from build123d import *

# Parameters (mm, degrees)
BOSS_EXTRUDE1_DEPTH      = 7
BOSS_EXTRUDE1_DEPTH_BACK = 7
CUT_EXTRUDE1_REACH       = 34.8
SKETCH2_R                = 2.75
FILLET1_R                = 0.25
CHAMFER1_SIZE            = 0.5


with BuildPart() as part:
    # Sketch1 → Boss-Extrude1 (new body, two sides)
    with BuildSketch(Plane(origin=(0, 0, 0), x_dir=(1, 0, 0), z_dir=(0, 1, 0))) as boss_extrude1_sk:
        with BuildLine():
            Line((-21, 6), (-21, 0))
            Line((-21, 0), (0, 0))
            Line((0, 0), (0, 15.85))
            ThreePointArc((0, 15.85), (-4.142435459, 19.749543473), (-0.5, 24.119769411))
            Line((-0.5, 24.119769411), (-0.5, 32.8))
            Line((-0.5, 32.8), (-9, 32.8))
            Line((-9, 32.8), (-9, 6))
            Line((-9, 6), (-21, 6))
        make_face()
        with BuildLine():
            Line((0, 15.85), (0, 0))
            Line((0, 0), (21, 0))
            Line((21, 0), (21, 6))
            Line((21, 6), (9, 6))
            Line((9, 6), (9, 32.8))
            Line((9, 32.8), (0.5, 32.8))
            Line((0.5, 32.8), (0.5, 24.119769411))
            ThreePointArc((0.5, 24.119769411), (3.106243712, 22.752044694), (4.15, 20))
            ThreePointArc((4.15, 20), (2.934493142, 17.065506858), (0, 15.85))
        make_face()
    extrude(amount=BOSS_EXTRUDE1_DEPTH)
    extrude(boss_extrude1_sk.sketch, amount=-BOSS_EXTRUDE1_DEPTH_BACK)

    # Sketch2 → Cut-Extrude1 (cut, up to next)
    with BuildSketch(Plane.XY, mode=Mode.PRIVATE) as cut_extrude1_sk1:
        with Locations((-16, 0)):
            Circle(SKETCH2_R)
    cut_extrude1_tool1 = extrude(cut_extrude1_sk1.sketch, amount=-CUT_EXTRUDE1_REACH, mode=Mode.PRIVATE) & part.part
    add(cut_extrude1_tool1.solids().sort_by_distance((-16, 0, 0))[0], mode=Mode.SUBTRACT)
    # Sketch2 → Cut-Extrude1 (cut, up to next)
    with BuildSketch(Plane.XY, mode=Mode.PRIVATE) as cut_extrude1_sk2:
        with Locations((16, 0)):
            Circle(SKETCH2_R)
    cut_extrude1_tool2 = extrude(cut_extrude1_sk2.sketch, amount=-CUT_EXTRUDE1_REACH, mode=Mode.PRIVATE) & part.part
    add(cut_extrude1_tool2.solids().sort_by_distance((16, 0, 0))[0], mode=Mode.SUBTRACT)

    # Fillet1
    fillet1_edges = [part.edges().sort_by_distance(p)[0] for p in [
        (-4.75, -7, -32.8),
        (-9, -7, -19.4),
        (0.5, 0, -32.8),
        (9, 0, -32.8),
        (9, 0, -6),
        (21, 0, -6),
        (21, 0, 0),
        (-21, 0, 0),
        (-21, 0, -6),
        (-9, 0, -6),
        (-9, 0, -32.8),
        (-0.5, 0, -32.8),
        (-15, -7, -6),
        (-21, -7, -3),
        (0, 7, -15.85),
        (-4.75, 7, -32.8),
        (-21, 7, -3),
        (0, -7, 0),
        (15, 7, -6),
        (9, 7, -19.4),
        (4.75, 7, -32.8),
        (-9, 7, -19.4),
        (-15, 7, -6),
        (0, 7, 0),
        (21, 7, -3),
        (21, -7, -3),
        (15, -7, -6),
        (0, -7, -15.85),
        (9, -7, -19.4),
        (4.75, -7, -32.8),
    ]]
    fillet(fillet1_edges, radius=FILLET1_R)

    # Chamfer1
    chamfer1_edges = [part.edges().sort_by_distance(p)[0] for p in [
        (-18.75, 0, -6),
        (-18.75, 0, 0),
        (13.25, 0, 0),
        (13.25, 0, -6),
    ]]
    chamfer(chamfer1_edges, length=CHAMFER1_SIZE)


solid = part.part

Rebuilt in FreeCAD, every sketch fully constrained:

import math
import FreeCAD as App
import Part
import Sketcher
from FreeCAD import Vector


def edges_at(feature, points):
    """Names of the edges that pass closest to the given points."""
    edges = feature.Shape.Edges
    near = lambda p: min(range(len(edges)), key=lambda i: edges[i].distToShape(Part.Vertex(*p))[0])
    return sorted({f"Edge{near(p) + 1}" for p in points})

doc = App.newDocument("Part")
params = doc.addObject("Spreadsheet::Sheet", "Params")
for row, (alias, value) in enumerate([
    ("sketch1_width", "42 mm"),
    ("sketch1_width2", "12 mm"),
    ("sketch1_height", "6 mm"),
    ("sketch1_radius", "4.15 mm"),
    ("sketch1_width3", "8.5 mm"),
    ("pad1_length", "7 mm"),
    ("pad1_length2", "7 mm"),
    ("sketch2_diameter", "5.5 mm"),
    ("sketch3_diameter", "5.5 mm"),
    ("fillet_radius", "0.25 mm"),
    ("chamfer_size", "0.5 mm"),
], start=1):
    params.set(f"A{row}", alias)
    params.set(f"B{row}", "=" + value)
    params.setAlias(f"B{row}", alias)

body = doc.addObject("PartDesign::Body", "Body")

# Sketch on XZ plane
sketch1 = body.newObject("Sketcher::SketchObject", "Sketch")
sketch1.AttachmentSupport = (doc.getObject("XZ_Plane"), [""])
sketch1.MapMode = "FlatFace"
sketch1.addGeometry(Part.LineSegment(Vector(-21, -6, 0), Vector(-21, 0, 0)), False)
sketch1.addGeometry(Part.LineSegment(Vector(-21, 0, 0), Vector(21, 0, 0)), False)
sketch1.addGeometry(Part.LineSegment(Vector(21, 0, 0), Vector(21, -6, 0)), False)
sketch1.addGeometry(Part.LineSegment(Vector(21, -6, 0), Vector(9, -6, 0)), False)
sketch1.addGeometry(Part.LineSegment(Vector(9, -6, 0), Vector(9, -32.8, 0)), False)
sketch1.addGeometry(Part.LineSegment(Vector(9, -32.8, 0), Vector(0.5, -32.8, 0)), False)
sketch1.addGeometry(Part.LineSegment(Vector(0.5, -32.8, 0), Vector(0.5, -24.119769, 0)), False)
sketch1.addGeometry(Part.ArcOfCircle(Part.Circle(Vector(0, -20, 0), Vector(0, 0, 1), 4.15), math.radians(-83.080083), math.radians(0)), False)
sketch1.addGeometry(Part.ArcOfCircle(Part.Circle(Vector(0, -20, 0), Vector(0, 0, 1), 4.15), math.radians(0), math.radians(90)), False)
sketch1.addGeometry(Part.ArcOfCircle(Part.Circle(Vector(0, -20, 0), Vector(0, 0, 1), 4.15), math.radians(90), math.radians(263.080083)), False)
sketch1.addGeometry(Part.LineSegment(Vector(-0.5, -24.119769, 0), Vector(-0.5, -32.8, 0)), False)
sketch1.addGeometry(Part.LineSegment(Vector(-0.5, -32.8, 0), Vector(-9, -32.8, 0)), False)
sketch1.addGeometry(Part.LineSegment(Vector(-9, -32.8, 0), Vector(-9, -6, 0)), False)
sketch1.addGeometry(Part.LineSegment(Vector(-9, -6, 0), Vector(-21, -6, 0)), False)
sketch1.addConstraint(Sketcher.Constraint("Coincident", 0, 2, 1, 1))
sketch1.addConstraint(Sketcher.Constraint("Coincident", 1, 2, 2, 1))
sketch1.addConstraint(Sketcher.Constraint("Coincident", 2, 2, 3, 1))
sketch1.addConstraint(Sketcher.Constraint("Coincident", 3, 2, 4, 1))
sketch1.addConstraint(Sketcher.Constraint("Coincident", 4, 2, 5, 1))
sketch1.addConstraint(Sketcher.Constraint("Coincident", 5, 2, 6, 1))
sketch1.addConstraint(Sketcher.Constraint("Coincident", 6, 2, 7, 1))
sketch1.addConstraint(Sketcher.Constraint("Tangent", 7, 2, 8, 1))
sketch1.addConstraint(Sketcher.Constraint("Tangent", 8, 2, 9, 1))
sketch1.addConstraint(Sketcher.Constraint("Coincident", 9, 2, 10, 1))
sketch1.addConstraint(Sketcher.Constraint("Coincident", 10, 2, 11, 1))
sketch1.addConstraint(Sketcher.Constraint("Coincident", 11, 2, 12, 1))
sketch1.addConstraint(Sketcher.Constraint("Coincident", 12, 2, 13, 1))
sketch1.addConstraint(Sketcher.Constraint("Coincident", 13, 2, 0, 1))
sketch1.addConstraint(Sketcher.Constraint("Vertical", 0))
sketch1.addConstraint(Sketcher.Constraint("Horizontal", 1))
sketch1.addConstraint(Sketcher.Constraint("Vertical", 2))
sketch1.addConstraint(Sketcher.Constraint("Horizontal", 3))
sketch1.addConstraint(Sketcher.Constraint("Vertical", 4))
sketch1.addConstraint(Sketcher.Constraint("Horizontal", 5))
sketch1.addConstraint(Sketcher.Constraint("Vertical", 6))
sketch1.addConstraint(Sketcher.Constraint("Vertical", 10))
sketch1.addConstraint(Sketcher.Constraint("Horizontal", 11))
sketch1.addConstraint(Sketcher.Constraint("Vertical", 12))
sketch1.addConstraint(Sketcher.Constraint("Horizontal", 13))
sketch1.addConstraint(Sketcher.Constraint("Coincident", 9, 3, 7, 3))
sketch1.addConstraint(Sketcher.Constraint("Symmetric", 0, 2, 1, 2, -1, 1))
sketch1.addConstraint(Sketcher.Constraint("Symmetric", 6, 2, 9, 2, -2))
sketch1.addConstraint(Sketcher.Constraint("Symmetric", 4, 2, 11, 2, -2))
sketch1.addConstraint(Sketcher.Constraint("PointOnObject", 8, 2, -2))
sketch1.addConstraint(Sketcher.Constraint("Horizontal", 9, 3, 7, 2))
sketch1.addConstraint(Sketcher.Constraint("Horizontal", 3, 2, 12, 2))
sketch1.addConstraint(Sketcher.Constraint("DistanceX", 1, 1, 1, 2, 42.0))
sketch1.addConstraint(Sketcher.Constraint("DistanceX", 3, 2, 3, 1, 12.0))
sketch1.addConstraint(Sketcher.Constraint("DistanceY", 0, 1, 0, 2, 6.0))
sketch1.addConstraint(Sketcher.Constraint("Radius", 7, 4.15))
sketch1.addConstraint(Sketcher.Constraint("DistanceX", 5, 2, 5, 1, 8.5))
sketch1.addConstraint(Sketcher.Constraint("DistanceY", 4, 2, 4, 1, 26.8))
sketch1.addConstraint(Sketcher.Constraint("DistanceY", 7, 3, -1, 1, 20.0))
sketch1.setExpression("Constraints[32]", "Params.sketch1_width")
sketch1.setExpression("Constraints[33]", "Params.sketch1_width2")
sketch1.setExpression("Constraints[34]", "Params.sketch1_height")
sketch1.setExpression("Constraints[35]", "Params.sketch1_radius")
sketch1.setExpression("Constraints[36]", "Params.sketch1_width3")
pad1 = body.newObject("PartDesign::Pad", "Pad")
pad1.Profile = sketch1
pad1.Type = "TwoLengths"
pad1.setExpression("Length", "Params.pad1_length")
pad1.setExpression("Length2", "Params.pad1_length2")
pad1.Reversed = True

# Sketch on XY plane
sketch2 = body.newObject("Sketcher::SketchObject", "Sketch001")
sketch2.AttachmentSupport = (doc.getObject("XY_Plane"), [""])
sketch2.MapMode = "FlatFace"
sketch2.addGeometry(Part.Circle(Vector(-16, 0, 0), Vector(0, 0, 1), 2.75), False)
sketch2.addConstraint(Sketcher.Constraint("PointOnObject", 0, 3, -1))
sketch2.addConstraint(Sketcher.Constraint("Diameter", 0, 5.5))
sketch2.addConstraint(Sketcher.Constraint("DistanceX", 0, 3, -1, 1, 16.0))
sketch2.setExpression("Constraints[1]", "Params.sketch2_diameter")
pocket1 = body.newObject("PartDesign::Pocket", "Pocket")
pocket1.Profile = sketch2
pocket1.Type = "UpToFirst"

# Sketch on XY plane
sketch3 = body.newObject("Sketcher::SketchObject", "Sketch002")
sketch3.AttachmentSupport = (doc.getObject("XY_Plane"), [""])
sketch3.MapMode = "FlatFace"
sketch3.addGeometry(Part.Circle(Vector(16, 0, 0), Vector(0, 0, 1), 2.75), False)
sketch3.addConstraint(Sketcher.Constraint("PointOnObject", 0, 3, -1))
sketch3.addConstraint(Sketcher.Constraint("Diameter", 0, 5.5))
sketch3.addConstraint(Sketcher.Constraint("DistanceX", -1, 1, 0, 3, 16.0))
sketch3.setExpression("Constraints[1]", "Params.sketch3_diameter")
pocket2 = body.newObject("PartDesign::Pocket", "Pocket001")
pocket2.Profile = sketch3
pocket2.Type = "UpToFirst"
doc.recompute()

fillet = body.newObject("PartDesign::Fillet", "Fillet")
fillet.Base = (pocket2, edges_at(pocket2, [
    (-4.75, -7, -32.8),
    (-9, -7, -19.4),
    (0.5, 0, -32.8),
    (9, 0, -32.8),
    (9, 0, -6),
    (21, 0, -6),
    (21, 0, 0),
    (-21, 0, 0),
    (-21, 0, -6),
    (-9, 0, -6),
    (-9, 0, -32.8),
    (-0.5, 0, -32.8),
    (-15, -7, -6),
    (-21, -7, -3),
    (2.934, 7, -17.066),
    (-4.75, 7, -32.8),
    (-21, 7, -3),
    (0, -7, 0),
    (15, 7, -6),
    (9, 7, -19.4),
    (4.75, 7, -32.8),
    (-9, 7, -19.4),
    (-15, 7, -6),
    (0, 7, 0),
    (21, 7, -3),
    (21, -7, -3),
    (15, -7, -6),
    (2.934, -7, -17.066),
    (9, -7, -19.4),
    (4.75, -7, -32.8),
]))
fillet.setExpression("Radius", "Params.fillet_radius")
doc.recompute()

chamfer = body.newObject("PartDesign::Chamfer", "Chamfer")
chamfer.Base = (fillet, edges_at(fillet, [
    (-18.75, 0, -6),
    (-18.75, 0, 0),
    (13.25, 0, 0),
    (13.25, 0, -6),
]))
chamfer.setExpression("Size", "Params.chamfer_size")

doc.recompute()
